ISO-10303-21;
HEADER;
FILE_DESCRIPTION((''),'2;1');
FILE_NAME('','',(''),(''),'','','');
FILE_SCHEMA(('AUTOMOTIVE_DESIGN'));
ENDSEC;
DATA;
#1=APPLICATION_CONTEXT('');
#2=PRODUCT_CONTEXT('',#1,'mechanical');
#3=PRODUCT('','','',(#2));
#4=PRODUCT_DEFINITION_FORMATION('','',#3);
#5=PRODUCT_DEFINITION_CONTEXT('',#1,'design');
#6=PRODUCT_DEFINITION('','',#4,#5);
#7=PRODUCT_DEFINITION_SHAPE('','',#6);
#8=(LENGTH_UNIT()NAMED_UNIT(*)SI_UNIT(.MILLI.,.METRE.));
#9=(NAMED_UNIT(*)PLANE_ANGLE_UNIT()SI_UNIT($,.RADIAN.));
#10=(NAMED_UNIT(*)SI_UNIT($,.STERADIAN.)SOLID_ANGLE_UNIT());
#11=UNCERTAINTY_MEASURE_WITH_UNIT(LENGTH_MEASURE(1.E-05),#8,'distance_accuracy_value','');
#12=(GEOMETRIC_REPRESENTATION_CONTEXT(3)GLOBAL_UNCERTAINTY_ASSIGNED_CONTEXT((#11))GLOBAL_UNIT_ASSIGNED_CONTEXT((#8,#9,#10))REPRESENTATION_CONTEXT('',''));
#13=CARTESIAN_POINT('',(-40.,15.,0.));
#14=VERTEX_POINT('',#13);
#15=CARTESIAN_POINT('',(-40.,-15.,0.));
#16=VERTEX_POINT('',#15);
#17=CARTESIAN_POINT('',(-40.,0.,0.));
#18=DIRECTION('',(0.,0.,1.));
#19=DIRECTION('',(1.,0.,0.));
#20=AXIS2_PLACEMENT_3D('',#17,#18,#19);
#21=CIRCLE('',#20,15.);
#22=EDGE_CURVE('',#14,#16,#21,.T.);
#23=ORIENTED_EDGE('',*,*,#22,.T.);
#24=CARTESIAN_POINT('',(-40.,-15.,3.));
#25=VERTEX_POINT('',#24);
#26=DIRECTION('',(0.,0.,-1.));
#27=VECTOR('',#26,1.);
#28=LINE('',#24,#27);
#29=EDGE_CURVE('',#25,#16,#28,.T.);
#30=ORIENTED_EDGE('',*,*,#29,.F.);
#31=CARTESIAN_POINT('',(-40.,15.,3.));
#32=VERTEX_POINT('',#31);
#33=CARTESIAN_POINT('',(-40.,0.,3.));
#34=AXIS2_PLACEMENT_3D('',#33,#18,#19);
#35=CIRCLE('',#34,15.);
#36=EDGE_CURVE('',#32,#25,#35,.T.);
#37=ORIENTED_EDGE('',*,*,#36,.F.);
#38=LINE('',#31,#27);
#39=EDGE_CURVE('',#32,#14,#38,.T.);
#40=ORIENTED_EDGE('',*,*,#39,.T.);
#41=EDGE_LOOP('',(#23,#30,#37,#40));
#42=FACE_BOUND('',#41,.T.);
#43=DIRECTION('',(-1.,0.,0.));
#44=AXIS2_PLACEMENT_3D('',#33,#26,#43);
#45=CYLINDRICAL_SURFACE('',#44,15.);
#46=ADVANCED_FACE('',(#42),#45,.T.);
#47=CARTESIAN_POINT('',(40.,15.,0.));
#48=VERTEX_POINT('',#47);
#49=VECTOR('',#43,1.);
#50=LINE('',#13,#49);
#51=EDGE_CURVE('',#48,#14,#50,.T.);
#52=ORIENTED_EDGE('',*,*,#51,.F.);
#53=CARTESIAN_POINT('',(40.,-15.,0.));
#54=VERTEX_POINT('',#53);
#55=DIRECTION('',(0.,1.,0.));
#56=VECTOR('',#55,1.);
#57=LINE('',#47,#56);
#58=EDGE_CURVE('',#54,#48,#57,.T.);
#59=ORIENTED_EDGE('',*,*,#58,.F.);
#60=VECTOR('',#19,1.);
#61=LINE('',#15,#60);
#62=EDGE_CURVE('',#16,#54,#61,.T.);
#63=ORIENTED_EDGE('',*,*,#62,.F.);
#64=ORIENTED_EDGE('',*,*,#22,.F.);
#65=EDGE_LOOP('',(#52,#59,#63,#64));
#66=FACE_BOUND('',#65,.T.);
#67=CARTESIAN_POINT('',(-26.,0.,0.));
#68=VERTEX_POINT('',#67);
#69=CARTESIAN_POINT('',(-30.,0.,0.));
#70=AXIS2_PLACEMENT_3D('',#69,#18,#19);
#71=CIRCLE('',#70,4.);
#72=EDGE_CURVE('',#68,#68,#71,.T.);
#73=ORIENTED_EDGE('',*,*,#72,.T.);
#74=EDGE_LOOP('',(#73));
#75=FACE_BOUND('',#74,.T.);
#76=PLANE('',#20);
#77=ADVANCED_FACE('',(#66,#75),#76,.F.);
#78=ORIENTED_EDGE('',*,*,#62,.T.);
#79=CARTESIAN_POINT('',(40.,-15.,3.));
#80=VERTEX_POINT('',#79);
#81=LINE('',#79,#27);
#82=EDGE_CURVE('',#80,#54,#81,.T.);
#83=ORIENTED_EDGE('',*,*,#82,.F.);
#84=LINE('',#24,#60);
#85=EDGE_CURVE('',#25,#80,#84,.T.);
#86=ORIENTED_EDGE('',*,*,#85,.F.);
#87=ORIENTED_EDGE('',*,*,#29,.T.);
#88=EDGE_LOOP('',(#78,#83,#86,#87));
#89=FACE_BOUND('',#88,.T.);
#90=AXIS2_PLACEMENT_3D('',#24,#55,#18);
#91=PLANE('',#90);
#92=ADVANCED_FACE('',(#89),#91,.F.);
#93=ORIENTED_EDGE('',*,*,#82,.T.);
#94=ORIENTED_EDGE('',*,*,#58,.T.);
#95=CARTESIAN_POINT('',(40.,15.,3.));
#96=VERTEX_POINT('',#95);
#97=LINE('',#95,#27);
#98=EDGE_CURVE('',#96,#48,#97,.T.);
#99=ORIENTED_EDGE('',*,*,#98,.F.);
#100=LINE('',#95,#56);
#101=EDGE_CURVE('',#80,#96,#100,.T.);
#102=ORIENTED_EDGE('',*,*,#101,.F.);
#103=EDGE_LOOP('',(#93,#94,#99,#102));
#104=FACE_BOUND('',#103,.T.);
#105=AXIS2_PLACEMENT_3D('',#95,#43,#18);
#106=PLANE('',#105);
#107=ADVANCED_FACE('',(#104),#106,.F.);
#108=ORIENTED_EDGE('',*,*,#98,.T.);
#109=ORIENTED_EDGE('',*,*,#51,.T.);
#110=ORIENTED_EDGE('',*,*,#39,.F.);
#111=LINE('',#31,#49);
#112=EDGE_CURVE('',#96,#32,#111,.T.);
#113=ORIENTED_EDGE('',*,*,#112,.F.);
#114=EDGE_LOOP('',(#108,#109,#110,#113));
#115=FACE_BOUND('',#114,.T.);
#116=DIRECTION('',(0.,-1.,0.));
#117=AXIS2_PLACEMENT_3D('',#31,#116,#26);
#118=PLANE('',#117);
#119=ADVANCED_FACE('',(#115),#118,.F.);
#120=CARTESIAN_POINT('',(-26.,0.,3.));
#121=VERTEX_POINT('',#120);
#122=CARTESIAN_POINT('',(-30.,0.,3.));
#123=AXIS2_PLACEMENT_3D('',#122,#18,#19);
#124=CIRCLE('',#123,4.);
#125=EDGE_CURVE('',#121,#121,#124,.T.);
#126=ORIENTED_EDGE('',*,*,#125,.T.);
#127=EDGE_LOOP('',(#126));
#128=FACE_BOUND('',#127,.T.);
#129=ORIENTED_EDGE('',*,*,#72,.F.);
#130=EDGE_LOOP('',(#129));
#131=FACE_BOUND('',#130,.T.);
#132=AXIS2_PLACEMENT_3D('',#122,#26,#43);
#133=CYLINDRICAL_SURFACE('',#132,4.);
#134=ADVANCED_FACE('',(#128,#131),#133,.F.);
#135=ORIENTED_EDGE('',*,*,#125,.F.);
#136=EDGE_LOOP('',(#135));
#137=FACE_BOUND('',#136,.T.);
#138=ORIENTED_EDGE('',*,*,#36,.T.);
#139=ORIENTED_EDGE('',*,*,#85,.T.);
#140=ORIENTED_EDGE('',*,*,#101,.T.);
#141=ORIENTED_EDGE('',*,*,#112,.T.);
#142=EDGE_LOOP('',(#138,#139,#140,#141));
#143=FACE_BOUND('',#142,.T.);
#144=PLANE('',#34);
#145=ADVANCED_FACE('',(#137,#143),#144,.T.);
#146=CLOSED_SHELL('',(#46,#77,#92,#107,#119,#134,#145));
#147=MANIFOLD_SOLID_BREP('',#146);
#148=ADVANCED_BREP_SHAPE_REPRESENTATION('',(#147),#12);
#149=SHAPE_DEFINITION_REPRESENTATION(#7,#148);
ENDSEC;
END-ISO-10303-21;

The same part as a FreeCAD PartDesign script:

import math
import FreeCAD as App
import Part
import Sketcher
Q = App.Units.Quantity

doc = App.newDocument("Part")
body = doc.addObject("PartDesign::Body", "Body")

# Sketch on XY plane
sketch1 = body.newObject("Sketcher::SketchObject", "Sketch")
sketch1.AttachmentSupport = (doc.getObject("XY_Plane"), [""])
sketch1.MapMode = "FlatFace"
sketch1.addGeometry([
    Part.LineSegment(App.Vector(40, 15, 0), App.Vector(-40, 15, 0)),  # 0
    Part.ArcOfCircle(Part.Circle(App.Vector(-40, 0, 0), App.Vector(0, 0, 1), 15), math.radians(90), math.radians(270)),  # 1
    Part.LineSegment(App.Vector(-40, -15, 0), App.Vector(40, -15, 0)),  # 2
    Part.LineSegment(App.Vector(40, -15, 0), App.Vector(40, 15, 0)),  # 3
    Part.Circle(App.Vector(-30, 0, 0), App.Vector(0, 0, 1), 4),  # 4
], False)
sketch1.addConstraint([
    Sketcher.Constraint("Tangent", 0, 2, 1, 1),
    Sketcher.Constraint("Tangent", 1, 2, 2, 1),
    Sketcher.Constraint("Coincident", 2, 2, 3, 1),
    Sketcher.Constraint("Coincident", 3, 2, 0, 1),
    Sketcher.Constraint("Horizontal", 0),
    Sketcher.Constraint("Horizontal", 2),
    Sketcher.Constraint("Vertical", 3),
    Sketcher.Constraint("Symmetric", 0, 2, 2, 2, -1, 1),
    Sketcher.Constraint("PointOnObject", 4, 3, -1),
    Sketcher.Constraint("Diameter", 4, Q("8 mm")),
    Sketcher.Constraint("Radius", 1, Q("15 mm")),
    Sketcher.Constraint("DistanceX", 0, 2, 0, 1, Q("80 mm")),
    Sketcher.Constraint("DistanceX", 4, 3, -1, 1, Q("30 mm")),
])
pad1 = body.newObject("PartDesign::Pad", "Pad")
pad1.Profile = sketch1
pad1.Length = 3

doc.recompute()
